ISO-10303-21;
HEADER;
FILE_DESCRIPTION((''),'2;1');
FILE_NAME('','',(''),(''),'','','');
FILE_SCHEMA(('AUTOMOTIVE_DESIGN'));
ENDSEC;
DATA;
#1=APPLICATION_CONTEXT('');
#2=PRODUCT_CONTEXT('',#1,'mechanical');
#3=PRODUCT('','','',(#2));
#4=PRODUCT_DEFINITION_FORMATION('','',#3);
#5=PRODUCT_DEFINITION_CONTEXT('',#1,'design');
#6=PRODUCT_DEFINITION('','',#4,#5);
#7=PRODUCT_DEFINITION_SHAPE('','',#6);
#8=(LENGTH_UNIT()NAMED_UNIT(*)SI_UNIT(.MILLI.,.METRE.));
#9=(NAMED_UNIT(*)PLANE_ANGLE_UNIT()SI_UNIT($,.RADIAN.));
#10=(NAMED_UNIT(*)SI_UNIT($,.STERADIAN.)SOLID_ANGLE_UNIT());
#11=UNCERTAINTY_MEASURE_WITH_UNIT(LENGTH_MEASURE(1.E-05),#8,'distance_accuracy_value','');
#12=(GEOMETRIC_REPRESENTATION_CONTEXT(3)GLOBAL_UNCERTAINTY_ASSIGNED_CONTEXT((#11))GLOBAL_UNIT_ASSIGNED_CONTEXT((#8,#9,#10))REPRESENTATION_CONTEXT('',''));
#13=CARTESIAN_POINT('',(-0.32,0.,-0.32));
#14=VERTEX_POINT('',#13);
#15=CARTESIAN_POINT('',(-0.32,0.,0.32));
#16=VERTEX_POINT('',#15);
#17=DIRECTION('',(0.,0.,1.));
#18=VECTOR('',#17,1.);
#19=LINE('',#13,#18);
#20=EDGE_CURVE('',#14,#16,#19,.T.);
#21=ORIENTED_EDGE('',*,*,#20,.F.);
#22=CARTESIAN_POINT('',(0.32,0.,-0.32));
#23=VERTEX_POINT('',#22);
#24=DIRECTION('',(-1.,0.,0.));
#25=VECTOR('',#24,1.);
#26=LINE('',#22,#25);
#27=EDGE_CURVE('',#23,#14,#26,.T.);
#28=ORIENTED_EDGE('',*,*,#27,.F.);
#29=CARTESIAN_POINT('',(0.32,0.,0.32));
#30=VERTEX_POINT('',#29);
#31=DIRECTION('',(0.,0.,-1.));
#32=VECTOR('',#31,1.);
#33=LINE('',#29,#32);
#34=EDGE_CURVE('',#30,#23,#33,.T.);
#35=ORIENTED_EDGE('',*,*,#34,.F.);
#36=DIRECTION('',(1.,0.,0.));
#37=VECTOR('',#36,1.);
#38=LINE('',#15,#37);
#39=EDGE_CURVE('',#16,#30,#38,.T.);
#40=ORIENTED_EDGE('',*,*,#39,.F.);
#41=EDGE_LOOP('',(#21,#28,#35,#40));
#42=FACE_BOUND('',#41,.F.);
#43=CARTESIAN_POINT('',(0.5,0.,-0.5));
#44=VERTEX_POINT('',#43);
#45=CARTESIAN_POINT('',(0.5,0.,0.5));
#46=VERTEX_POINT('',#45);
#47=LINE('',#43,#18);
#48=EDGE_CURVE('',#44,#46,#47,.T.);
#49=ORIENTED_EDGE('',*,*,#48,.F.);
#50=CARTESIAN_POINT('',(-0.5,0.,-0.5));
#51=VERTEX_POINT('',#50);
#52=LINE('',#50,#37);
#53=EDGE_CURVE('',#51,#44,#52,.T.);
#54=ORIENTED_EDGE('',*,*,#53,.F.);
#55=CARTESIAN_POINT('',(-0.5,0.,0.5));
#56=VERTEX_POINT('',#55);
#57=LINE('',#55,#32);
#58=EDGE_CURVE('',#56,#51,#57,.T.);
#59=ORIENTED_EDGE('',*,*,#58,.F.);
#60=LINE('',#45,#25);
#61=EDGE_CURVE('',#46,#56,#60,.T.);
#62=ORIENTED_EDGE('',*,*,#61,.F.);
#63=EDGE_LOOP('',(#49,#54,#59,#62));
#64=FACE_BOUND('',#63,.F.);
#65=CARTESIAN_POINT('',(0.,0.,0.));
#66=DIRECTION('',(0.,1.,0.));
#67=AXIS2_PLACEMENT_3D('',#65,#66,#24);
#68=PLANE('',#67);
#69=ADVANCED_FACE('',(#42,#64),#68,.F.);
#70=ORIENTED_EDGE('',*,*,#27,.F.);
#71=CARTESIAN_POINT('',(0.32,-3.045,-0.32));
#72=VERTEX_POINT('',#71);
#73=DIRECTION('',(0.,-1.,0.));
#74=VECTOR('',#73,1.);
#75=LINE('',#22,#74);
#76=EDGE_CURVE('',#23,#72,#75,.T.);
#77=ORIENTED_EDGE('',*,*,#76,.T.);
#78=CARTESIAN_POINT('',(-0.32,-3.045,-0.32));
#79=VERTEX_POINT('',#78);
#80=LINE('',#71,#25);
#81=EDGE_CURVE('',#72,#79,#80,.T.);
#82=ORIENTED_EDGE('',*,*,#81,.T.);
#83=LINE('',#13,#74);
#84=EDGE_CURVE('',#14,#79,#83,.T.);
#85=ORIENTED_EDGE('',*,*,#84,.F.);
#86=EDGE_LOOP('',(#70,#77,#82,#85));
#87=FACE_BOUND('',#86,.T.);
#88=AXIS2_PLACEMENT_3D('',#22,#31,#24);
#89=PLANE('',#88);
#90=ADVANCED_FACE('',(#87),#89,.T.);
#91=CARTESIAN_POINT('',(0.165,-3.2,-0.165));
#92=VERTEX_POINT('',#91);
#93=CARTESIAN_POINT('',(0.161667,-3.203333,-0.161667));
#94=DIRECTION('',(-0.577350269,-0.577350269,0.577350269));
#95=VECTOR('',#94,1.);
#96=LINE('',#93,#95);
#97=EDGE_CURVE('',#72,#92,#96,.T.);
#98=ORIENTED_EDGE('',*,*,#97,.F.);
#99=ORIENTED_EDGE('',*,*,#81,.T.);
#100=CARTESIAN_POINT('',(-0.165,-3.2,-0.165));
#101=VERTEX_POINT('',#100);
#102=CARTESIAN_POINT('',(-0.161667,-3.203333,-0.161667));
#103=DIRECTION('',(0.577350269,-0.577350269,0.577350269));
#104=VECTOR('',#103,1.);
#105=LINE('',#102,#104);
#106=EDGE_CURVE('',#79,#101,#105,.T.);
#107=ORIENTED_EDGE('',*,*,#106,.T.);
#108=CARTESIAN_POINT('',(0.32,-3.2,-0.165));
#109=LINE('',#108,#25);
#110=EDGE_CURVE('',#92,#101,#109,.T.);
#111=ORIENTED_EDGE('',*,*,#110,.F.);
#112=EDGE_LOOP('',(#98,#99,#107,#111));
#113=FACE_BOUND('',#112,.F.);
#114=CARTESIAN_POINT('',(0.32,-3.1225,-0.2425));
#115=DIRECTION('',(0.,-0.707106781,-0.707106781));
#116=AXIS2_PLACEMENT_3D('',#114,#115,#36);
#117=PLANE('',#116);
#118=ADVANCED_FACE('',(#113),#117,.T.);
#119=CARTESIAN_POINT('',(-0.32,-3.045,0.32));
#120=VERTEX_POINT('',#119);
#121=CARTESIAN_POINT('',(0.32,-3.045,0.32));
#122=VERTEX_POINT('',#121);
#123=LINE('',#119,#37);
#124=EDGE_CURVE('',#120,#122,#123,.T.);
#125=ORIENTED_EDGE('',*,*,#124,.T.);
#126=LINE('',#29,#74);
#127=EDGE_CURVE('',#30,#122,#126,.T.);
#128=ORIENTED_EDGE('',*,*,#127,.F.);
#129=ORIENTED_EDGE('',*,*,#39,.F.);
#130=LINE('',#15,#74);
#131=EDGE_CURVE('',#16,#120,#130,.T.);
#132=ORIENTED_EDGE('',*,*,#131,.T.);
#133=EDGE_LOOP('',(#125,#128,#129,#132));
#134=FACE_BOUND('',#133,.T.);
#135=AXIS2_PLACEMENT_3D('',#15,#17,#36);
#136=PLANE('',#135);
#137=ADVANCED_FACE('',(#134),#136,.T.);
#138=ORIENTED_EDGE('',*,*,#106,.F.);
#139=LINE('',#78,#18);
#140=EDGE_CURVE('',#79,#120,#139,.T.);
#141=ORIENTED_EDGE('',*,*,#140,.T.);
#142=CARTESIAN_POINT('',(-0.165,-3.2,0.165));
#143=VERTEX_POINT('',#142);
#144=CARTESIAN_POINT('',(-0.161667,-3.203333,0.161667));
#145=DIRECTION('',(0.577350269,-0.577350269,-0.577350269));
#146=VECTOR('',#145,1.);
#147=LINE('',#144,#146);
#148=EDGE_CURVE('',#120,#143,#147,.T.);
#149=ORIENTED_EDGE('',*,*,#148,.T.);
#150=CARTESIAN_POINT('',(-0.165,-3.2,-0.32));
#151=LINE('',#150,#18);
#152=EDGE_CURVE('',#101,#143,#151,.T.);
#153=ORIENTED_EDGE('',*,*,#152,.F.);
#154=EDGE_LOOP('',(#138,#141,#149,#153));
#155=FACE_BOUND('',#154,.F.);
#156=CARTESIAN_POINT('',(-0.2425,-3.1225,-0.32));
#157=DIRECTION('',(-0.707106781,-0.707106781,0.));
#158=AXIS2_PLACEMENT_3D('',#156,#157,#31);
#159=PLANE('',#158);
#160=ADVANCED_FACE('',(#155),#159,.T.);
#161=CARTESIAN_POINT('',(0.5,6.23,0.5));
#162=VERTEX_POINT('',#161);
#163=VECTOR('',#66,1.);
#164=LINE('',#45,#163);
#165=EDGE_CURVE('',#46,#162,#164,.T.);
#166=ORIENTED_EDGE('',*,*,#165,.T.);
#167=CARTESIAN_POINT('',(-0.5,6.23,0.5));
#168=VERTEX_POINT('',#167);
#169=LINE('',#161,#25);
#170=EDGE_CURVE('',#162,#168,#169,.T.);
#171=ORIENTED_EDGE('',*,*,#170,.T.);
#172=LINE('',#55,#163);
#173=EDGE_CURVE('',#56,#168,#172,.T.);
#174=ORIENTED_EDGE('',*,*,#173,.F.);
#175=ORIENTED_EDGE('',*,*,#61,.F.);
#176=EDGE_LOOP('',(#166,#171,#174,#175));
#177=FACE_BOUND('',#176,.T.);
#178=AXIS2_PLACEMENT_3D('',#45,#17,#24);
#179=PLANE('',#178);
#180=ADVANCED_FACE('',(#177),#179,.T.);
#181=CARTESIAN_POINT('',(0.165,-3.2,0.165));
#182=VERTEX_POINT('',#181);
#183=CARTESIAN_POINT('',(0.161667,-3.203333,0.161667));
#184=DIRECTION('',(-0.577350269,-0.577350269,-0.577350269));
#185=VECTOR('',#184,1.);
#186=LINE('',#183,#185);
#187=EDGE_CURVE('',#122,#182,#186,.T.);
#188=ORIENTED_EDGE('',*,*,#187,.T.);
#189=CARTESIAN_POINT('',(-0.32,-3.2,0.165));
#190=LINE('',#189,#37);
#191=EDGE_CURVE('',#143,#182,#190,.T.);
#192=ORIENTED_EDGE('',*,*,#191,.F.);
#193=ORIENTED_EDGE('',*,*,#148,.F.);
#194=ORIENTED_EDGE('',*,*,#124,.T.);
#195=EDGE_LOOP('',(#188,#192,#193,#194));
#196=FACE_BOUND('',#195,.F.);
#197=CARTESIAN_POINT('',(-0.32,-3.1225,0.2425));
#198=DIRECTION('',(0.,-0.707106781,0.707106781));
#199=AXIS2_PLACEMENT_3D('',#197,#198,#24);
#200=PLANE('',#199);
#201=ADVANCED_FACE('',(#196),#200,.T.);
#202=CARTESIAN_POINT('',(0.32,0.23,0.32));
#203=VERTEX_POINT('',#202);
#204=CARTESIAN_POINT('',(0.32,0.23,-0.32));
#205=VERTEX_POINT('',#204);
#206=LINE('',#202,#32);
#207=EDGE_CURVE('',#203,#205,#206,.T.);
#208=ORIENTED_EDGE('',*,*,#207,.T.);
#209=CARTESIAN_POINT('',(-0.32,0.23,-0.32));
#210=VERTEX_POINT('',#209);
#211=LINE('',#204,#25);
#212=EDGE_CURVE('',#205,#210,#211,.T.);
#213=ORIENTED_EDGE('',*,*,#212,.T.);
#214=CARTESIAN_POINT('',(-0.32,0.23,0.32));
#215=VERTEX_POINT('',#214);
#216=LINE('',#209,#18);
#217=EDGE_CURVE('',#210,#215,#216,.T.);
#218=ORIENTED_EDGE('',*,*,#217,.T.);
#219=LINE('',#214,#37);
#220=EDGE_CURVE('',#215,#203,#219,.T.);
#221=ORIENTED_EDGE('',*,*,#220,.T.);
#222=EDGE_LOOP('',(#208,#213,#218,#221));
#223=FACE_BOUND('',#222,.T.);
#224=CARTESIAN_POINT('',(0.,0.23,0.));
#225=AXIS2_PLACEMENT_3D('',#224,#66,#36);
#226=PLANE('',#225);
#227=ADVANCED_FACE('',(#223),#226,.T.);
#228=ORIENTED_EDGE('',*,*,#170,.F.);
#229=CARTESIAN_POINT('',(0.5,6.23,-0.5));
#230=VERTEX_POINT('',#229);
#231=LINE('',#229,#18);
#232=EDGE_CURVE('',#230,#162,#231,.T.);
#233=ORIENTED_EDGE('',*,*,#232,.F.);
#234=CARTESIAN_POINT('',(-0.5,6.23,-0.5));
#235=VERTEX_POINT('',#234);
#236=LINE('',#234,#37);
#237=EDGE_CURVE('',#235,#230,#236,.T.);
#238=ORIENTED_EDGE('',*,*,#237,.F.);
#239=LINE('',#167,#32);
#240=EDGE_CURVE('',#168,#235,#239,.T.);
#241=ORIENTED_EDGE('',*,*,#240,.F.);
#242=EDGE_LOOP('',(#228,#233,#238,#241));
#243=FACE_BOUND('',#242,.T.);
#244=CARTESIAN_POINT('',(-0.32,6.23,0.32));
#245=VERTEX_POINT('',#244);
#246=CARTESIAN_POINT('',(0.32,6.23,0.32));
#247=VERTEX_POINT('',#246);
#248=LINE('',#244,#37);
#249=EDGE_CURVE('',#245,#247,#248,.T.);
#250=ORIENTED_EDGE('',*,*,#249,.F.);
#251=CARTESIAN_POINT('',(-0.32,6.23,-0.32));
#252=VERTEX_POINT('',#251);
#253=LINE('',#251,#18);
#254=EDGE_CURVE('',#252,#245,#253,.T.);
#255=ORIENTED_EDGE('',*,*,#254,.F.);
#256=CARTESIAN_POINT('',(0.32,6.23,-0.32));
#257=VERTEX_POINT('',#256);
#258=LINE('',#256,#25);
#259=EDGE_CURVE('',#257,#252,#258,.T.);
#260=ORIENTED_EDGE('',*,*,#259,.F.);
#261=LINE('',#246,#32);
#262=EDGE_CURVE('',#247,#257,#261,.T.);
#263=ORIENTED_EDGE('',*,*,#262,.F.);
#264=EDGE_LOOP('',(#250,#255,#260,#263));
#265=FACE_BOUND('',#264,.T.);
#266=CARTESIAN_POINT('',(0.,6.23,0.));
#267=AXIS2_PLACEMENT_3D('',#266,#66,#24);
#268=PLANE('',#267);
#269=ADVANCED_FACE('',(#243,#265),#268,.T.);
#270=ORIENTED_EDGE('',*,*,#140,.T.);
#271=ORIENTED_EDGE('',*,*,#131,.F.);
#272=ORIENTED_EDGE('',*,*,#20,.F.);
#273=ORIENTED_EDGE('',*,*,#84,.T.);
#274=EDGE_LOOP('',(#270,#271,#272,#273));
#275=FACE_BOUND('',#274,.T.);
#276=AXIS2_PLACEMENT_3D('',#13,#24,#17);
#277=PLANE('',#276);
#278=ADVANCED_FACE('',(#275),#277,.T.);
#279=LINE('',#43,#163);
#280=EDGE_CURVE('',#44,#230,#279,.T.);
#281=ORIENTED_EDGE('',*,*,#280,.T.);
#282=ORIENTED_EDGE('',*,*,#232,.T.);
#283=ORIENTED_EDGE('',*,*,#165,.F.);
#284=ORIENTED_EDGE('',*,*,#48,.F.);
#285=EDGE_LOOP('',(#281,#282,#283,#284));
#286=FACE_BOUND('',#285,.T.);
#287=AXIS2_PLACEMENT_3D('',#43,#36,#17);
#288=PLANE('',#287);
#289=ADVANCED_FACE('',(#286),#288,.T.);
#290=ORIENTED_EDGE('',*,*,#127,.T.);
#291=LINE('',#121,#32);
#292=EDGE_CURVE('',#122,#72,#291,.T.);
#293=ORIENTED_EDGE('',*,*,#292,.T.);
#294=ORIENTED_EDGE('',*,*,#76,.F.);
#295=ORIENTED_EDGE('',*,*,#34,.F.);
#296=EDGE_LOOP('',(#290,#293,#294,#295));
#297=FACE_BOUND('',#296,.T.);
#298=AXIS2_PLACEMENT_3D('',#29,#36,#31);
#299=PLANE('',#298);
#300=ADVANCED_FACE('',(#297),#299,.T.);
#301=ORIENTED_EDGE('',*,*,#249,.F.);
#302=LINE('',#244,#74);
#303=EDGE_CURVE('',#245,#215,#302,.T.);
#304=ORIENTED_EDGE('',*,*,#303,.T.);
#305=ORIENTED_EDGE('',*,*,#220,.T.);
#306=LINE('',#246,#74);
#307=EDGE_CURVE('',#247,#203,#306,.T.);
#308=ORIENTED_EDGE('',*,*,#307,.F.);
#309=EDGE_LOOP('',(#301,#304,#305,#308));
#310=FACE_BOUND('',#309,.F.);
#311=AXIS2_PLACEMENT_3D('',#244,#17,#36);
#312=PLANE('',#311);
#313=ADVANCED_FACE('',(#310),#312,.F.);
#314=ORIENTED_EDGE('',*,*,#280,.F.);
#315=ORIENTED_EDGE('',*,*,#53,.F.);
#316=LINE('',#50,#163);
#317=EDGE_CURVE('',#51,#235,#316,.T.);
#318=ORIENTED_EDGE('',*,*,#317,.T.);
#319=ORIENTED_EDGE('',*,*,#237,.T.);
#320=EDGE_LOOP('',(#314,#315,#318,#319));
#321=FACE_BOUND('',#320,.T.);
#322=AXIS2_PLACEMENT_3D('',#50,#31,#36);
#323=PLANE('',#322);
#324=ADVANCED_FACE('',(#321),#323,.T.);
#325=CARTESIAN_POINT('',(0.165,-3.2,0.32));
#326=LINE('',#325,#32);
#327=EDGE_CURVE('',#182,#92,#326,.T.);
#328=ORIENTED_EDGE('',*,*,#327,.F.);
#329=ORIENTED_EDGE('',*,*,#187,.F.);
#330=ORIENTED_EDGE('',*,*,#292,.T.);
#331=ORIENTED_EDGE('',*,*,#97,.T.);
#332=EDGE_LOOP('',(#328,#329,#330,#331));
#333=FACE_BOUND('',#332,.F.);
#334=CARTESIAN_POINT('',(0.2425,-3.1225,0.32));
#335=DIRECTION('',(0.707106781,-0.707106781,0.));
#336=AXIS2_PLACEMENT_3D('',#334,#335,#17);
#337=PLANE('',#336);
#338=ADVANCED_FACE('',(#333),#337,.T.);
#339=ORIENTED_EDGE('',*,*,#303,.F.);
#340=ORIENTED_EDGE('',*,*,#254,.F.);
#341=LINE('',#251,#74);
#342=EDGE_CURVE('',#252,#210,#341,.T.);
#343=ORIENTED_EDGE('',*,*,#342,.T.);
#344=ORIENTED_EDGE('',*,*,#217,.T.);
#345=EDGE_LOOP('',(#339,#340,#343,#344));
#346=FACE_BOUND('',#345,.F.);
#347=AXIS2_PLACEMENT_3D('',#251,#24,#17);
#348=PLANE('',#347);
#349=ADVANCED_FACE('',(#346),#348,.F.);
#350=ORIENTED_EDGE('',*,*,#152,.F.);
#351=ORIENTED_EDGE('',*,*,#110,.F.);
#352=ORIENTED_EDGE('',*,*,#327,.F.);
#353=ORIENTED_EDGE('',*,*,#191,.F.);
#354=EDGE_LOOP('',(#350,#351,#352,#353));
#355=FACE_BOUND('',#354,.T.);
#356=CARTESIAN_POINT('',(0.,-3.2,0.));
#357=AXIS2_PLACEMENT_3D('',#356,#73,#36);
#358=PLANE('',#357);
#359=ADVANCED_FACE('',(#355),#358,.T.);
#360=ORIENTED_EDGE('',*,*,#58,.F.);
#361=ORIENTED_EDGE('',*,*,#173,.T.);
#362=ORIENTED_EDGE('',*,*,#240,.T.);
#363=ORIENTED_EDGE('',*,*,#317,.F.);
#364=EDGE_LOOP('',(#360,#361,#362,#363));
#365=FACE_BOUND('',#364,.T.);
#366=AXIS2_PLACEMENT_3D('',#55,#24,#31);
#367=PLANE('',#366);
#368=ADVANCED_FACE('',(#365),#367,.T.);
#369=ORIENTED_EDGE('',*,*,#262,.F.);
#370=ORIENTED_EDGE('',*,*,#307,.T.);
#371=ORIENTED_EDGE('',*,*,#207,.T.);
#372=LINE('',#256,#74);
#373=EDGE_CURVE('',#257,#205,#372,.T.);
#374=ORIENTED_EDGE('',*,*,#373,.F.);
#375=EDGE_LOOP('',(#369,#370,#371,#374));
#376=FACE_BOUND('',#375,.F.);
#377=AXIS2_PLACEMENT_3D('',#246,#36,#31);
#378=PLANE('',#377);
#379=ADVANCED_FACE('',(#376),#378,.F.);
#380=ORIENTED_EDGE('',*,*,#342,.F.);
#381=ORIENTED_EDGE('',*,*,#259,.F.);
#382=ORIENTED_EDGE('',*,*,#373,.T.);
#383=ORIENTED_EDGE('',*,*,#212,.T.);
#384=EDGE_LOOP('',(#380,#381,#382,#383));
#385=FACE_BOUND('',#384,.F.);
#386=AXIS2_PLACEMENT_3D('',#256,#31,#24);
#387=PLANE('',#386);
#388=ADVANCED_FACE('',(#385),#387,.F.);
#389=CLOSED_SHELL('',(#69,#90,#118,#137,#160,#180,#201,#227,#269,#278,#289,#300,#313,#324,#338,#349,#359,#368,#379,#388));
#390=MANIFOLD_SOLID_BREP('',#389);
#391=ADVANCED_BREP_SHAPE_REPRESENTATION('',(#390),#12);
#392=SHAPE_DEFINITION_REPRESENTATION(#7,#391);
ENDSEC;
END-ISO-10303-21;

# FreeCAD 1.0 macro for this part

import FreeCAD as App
import Part
import Sketcher

V = App.Vector
Q = App.Units.Quantity


def edges_at(feature, points):
    """Names of the edges that pass closest to the given points."""
    edges = feature.Shape.Edges
    near = lambda p: min(range(len(edges)), key=lambda i: edges[i].distToShape(Part.Vertex(*p))[0])
    return sorted({f"Edge{near(p) + 1}" for p in points})

doc = App.newDocument("Part")
body = doc.addObject("PartDesign::Body", "Body")

# Sketch on XZ plane
sketch1 = body.newObject("Sketcher::SketchObject", "Sketch")
sketch1.AttachmentSupport = (doc.getObject("XZ_Plane"), [""])
sketch1.MapMode = "FlatFace"
sketch1.addGeometry([
    Part.LineSegment(V(-0.5, 0.5, 0), V(0.5, 0.5, 0)),
    Part.LineSegment(V(0.5, 0.5, 0), V(0.5, -0.5, 0)),
    Part.LineSegment(V(0.5, -0.5, 0), V(-0.5, -0.5, 0)),
    Part.LineSegment(V(-0.5, -0.5, 0), V(-0.5, 0.5, 0)),
], False)
sketch1.addConstraint([
    Sketcher.Constraint("Coincident", 0, 2, 1, 1),
    Sketcher.Constraint("Coincident", 1, 2, 2, 1),
    Sketcher.Constraint("Coincident", 2, 2, 3, 1),
    Sketcher.Constraint("Coincident", 3, 2, 0, 1),
    Sketcher.Constraint("Horizontal", 0),
    Sketcher.Constraint("Vertical", 1),
    Sketcher.Constraint("Horizontal", 2),
    Sketcher.Constraint("Vertical", 3),
    Sketcher.Constraint("Symmetric", 0, 2, 2, 2, -1, 1),
    Sketcher.Constraint("Equal", 2, 1),
    Sketcher.Constraint("DistanceX", 0, 1, 0, 2, Q("1 mm")),
])
pad1 = body.newObject("PartDesign::Pad", "Pad")
pad1.Profile = sketch1
pad1.Length = 6.23
pad1.Reversed = True

# Sketch on XZ plane
sketch2 = body.newObject("Sketcher::SketchObject", "Sketch001")
sketch2.AttachmentSupport = (doc.getObject("XZ_Plane"), [""])
sketch2.MapMode = "FlatFace"
sketch2.addGeometry([
    Part.LineSegment(V(0.32, 0.32, 0), V(-0.32, 0.32, 0)),
    Part.LineSegment(V(-0.32, 0.32, 0), V(-0.32, -0.32, 0)),
    Part.LineSegment(V(-0.32, -0.32, 0), V(0.32, -0.32, 0)),
    Part.LineSegment(V(0.32, -0.32, 0), V(0.32, 0.32, 0)),
], False)
sketch2.addConstraint([
    Sketcher.Constraint("Coincident", 0, 2, 1, 1),
    Sketcher.Constraint("Coincident", 1, 2, 2, 1),
    Sketcher.Constraint("Coincident", 2, 2, 3, 1),
    Sketcher.Constraint("Coincident", 3, 2, 0, 1),
    Sketcher.Constraint("Horizontal", 0),
    Sketcher.Constraint("Vertical", 1),
    Sketcher.Constraint("Horizontal", 2),
    Sketcher.Constraint("Vertical", 3),
    Sketcher.Constraint("Symmetric", 0, 2, 2, 2, -1, 1),
    Sketcher.Constraint("Equal", 2, 1),
    Sketcher.Constraint("DistanceX", 0, 2, 0, 1, Q("0.64 mm")),
])
pad2 = body.newObject("PartDesign::Pad", "Pad001")
pad2.Profile = sketch2
pad2.Length = 3.2
doc.recompute()

chamfer = body.newObject("PartDesign::Chamfer", "Chamfer")
chamfer.Base = (pad2, edges_at(pad2, [
    (0, -3.2, 0.32),
    (0.32, -3.2, 0),
    (0, -3.2, -0.32),
    (-0.32, -3.2, 0),
]))
chamfer.Size = 0.155

# Sketch on XZ plane
sketch3 = body.newObject("Sketcher::SketchObject", "Sketch002")
sketch3.AttachmentSupport = (doc.getObject("XZ_Plane"), [""])
sketch3.MapMode = "FlatFace"
sketch3.AttachmentOffset = App.Placement(V(0, 0, -6.23), App.Rotation())
sketch3.addGeometry([
    Part.LineSegment(V(0.32, 0.32, 0), V(0.32, -0.32, 0)),
    Part.LineSegment(V(0.32, -0.32, 0), V(-0.32, -0.32, 0)),
    Part.LineSegment(V(-0.32, -0.32, 0), V(-0.32, 0.32, 0)),
    Part.LineSegment(V(-0.32, 0.32, 0), V(0.32, 0.32, 0)),
], False)
sketch3.addConstraint([
    Sketcher.Constraint("Coincident", 0, 2, 1, 1),
    Sketcher.Constraint("Coincident", 1, 2, 2, 1),
    Sketcher.Constraint("Coincident", 2, 2, 3, 1),
    Sketcher.Constraint("Coincident", 3, 2, 0, 1),
    Sketcher.Constraint("Vertical", 0),
    Sketcher.Constraint("Horizontal", 1),
    Sketcher.Constraint("Vertical", 2),
    Sketcher.Constraint("Horizontal", 3),
    Sketcher.Constraint("Symmetric", 0, 2, 2, 2, -1, 1),
    Sketcher.Constraint("Equal", 3, 0),
    Sketcher.Constraint("DistanceX", 1, 2, 1, 1, Q("0.64 mm")),
])
pocket1 = body.newObject("PartDesign::Pocket", "Pocket")
pocket1.Profile = sketch3
pocket1.Length = 6
pocket1.Reversed = True

doc.recompute()
